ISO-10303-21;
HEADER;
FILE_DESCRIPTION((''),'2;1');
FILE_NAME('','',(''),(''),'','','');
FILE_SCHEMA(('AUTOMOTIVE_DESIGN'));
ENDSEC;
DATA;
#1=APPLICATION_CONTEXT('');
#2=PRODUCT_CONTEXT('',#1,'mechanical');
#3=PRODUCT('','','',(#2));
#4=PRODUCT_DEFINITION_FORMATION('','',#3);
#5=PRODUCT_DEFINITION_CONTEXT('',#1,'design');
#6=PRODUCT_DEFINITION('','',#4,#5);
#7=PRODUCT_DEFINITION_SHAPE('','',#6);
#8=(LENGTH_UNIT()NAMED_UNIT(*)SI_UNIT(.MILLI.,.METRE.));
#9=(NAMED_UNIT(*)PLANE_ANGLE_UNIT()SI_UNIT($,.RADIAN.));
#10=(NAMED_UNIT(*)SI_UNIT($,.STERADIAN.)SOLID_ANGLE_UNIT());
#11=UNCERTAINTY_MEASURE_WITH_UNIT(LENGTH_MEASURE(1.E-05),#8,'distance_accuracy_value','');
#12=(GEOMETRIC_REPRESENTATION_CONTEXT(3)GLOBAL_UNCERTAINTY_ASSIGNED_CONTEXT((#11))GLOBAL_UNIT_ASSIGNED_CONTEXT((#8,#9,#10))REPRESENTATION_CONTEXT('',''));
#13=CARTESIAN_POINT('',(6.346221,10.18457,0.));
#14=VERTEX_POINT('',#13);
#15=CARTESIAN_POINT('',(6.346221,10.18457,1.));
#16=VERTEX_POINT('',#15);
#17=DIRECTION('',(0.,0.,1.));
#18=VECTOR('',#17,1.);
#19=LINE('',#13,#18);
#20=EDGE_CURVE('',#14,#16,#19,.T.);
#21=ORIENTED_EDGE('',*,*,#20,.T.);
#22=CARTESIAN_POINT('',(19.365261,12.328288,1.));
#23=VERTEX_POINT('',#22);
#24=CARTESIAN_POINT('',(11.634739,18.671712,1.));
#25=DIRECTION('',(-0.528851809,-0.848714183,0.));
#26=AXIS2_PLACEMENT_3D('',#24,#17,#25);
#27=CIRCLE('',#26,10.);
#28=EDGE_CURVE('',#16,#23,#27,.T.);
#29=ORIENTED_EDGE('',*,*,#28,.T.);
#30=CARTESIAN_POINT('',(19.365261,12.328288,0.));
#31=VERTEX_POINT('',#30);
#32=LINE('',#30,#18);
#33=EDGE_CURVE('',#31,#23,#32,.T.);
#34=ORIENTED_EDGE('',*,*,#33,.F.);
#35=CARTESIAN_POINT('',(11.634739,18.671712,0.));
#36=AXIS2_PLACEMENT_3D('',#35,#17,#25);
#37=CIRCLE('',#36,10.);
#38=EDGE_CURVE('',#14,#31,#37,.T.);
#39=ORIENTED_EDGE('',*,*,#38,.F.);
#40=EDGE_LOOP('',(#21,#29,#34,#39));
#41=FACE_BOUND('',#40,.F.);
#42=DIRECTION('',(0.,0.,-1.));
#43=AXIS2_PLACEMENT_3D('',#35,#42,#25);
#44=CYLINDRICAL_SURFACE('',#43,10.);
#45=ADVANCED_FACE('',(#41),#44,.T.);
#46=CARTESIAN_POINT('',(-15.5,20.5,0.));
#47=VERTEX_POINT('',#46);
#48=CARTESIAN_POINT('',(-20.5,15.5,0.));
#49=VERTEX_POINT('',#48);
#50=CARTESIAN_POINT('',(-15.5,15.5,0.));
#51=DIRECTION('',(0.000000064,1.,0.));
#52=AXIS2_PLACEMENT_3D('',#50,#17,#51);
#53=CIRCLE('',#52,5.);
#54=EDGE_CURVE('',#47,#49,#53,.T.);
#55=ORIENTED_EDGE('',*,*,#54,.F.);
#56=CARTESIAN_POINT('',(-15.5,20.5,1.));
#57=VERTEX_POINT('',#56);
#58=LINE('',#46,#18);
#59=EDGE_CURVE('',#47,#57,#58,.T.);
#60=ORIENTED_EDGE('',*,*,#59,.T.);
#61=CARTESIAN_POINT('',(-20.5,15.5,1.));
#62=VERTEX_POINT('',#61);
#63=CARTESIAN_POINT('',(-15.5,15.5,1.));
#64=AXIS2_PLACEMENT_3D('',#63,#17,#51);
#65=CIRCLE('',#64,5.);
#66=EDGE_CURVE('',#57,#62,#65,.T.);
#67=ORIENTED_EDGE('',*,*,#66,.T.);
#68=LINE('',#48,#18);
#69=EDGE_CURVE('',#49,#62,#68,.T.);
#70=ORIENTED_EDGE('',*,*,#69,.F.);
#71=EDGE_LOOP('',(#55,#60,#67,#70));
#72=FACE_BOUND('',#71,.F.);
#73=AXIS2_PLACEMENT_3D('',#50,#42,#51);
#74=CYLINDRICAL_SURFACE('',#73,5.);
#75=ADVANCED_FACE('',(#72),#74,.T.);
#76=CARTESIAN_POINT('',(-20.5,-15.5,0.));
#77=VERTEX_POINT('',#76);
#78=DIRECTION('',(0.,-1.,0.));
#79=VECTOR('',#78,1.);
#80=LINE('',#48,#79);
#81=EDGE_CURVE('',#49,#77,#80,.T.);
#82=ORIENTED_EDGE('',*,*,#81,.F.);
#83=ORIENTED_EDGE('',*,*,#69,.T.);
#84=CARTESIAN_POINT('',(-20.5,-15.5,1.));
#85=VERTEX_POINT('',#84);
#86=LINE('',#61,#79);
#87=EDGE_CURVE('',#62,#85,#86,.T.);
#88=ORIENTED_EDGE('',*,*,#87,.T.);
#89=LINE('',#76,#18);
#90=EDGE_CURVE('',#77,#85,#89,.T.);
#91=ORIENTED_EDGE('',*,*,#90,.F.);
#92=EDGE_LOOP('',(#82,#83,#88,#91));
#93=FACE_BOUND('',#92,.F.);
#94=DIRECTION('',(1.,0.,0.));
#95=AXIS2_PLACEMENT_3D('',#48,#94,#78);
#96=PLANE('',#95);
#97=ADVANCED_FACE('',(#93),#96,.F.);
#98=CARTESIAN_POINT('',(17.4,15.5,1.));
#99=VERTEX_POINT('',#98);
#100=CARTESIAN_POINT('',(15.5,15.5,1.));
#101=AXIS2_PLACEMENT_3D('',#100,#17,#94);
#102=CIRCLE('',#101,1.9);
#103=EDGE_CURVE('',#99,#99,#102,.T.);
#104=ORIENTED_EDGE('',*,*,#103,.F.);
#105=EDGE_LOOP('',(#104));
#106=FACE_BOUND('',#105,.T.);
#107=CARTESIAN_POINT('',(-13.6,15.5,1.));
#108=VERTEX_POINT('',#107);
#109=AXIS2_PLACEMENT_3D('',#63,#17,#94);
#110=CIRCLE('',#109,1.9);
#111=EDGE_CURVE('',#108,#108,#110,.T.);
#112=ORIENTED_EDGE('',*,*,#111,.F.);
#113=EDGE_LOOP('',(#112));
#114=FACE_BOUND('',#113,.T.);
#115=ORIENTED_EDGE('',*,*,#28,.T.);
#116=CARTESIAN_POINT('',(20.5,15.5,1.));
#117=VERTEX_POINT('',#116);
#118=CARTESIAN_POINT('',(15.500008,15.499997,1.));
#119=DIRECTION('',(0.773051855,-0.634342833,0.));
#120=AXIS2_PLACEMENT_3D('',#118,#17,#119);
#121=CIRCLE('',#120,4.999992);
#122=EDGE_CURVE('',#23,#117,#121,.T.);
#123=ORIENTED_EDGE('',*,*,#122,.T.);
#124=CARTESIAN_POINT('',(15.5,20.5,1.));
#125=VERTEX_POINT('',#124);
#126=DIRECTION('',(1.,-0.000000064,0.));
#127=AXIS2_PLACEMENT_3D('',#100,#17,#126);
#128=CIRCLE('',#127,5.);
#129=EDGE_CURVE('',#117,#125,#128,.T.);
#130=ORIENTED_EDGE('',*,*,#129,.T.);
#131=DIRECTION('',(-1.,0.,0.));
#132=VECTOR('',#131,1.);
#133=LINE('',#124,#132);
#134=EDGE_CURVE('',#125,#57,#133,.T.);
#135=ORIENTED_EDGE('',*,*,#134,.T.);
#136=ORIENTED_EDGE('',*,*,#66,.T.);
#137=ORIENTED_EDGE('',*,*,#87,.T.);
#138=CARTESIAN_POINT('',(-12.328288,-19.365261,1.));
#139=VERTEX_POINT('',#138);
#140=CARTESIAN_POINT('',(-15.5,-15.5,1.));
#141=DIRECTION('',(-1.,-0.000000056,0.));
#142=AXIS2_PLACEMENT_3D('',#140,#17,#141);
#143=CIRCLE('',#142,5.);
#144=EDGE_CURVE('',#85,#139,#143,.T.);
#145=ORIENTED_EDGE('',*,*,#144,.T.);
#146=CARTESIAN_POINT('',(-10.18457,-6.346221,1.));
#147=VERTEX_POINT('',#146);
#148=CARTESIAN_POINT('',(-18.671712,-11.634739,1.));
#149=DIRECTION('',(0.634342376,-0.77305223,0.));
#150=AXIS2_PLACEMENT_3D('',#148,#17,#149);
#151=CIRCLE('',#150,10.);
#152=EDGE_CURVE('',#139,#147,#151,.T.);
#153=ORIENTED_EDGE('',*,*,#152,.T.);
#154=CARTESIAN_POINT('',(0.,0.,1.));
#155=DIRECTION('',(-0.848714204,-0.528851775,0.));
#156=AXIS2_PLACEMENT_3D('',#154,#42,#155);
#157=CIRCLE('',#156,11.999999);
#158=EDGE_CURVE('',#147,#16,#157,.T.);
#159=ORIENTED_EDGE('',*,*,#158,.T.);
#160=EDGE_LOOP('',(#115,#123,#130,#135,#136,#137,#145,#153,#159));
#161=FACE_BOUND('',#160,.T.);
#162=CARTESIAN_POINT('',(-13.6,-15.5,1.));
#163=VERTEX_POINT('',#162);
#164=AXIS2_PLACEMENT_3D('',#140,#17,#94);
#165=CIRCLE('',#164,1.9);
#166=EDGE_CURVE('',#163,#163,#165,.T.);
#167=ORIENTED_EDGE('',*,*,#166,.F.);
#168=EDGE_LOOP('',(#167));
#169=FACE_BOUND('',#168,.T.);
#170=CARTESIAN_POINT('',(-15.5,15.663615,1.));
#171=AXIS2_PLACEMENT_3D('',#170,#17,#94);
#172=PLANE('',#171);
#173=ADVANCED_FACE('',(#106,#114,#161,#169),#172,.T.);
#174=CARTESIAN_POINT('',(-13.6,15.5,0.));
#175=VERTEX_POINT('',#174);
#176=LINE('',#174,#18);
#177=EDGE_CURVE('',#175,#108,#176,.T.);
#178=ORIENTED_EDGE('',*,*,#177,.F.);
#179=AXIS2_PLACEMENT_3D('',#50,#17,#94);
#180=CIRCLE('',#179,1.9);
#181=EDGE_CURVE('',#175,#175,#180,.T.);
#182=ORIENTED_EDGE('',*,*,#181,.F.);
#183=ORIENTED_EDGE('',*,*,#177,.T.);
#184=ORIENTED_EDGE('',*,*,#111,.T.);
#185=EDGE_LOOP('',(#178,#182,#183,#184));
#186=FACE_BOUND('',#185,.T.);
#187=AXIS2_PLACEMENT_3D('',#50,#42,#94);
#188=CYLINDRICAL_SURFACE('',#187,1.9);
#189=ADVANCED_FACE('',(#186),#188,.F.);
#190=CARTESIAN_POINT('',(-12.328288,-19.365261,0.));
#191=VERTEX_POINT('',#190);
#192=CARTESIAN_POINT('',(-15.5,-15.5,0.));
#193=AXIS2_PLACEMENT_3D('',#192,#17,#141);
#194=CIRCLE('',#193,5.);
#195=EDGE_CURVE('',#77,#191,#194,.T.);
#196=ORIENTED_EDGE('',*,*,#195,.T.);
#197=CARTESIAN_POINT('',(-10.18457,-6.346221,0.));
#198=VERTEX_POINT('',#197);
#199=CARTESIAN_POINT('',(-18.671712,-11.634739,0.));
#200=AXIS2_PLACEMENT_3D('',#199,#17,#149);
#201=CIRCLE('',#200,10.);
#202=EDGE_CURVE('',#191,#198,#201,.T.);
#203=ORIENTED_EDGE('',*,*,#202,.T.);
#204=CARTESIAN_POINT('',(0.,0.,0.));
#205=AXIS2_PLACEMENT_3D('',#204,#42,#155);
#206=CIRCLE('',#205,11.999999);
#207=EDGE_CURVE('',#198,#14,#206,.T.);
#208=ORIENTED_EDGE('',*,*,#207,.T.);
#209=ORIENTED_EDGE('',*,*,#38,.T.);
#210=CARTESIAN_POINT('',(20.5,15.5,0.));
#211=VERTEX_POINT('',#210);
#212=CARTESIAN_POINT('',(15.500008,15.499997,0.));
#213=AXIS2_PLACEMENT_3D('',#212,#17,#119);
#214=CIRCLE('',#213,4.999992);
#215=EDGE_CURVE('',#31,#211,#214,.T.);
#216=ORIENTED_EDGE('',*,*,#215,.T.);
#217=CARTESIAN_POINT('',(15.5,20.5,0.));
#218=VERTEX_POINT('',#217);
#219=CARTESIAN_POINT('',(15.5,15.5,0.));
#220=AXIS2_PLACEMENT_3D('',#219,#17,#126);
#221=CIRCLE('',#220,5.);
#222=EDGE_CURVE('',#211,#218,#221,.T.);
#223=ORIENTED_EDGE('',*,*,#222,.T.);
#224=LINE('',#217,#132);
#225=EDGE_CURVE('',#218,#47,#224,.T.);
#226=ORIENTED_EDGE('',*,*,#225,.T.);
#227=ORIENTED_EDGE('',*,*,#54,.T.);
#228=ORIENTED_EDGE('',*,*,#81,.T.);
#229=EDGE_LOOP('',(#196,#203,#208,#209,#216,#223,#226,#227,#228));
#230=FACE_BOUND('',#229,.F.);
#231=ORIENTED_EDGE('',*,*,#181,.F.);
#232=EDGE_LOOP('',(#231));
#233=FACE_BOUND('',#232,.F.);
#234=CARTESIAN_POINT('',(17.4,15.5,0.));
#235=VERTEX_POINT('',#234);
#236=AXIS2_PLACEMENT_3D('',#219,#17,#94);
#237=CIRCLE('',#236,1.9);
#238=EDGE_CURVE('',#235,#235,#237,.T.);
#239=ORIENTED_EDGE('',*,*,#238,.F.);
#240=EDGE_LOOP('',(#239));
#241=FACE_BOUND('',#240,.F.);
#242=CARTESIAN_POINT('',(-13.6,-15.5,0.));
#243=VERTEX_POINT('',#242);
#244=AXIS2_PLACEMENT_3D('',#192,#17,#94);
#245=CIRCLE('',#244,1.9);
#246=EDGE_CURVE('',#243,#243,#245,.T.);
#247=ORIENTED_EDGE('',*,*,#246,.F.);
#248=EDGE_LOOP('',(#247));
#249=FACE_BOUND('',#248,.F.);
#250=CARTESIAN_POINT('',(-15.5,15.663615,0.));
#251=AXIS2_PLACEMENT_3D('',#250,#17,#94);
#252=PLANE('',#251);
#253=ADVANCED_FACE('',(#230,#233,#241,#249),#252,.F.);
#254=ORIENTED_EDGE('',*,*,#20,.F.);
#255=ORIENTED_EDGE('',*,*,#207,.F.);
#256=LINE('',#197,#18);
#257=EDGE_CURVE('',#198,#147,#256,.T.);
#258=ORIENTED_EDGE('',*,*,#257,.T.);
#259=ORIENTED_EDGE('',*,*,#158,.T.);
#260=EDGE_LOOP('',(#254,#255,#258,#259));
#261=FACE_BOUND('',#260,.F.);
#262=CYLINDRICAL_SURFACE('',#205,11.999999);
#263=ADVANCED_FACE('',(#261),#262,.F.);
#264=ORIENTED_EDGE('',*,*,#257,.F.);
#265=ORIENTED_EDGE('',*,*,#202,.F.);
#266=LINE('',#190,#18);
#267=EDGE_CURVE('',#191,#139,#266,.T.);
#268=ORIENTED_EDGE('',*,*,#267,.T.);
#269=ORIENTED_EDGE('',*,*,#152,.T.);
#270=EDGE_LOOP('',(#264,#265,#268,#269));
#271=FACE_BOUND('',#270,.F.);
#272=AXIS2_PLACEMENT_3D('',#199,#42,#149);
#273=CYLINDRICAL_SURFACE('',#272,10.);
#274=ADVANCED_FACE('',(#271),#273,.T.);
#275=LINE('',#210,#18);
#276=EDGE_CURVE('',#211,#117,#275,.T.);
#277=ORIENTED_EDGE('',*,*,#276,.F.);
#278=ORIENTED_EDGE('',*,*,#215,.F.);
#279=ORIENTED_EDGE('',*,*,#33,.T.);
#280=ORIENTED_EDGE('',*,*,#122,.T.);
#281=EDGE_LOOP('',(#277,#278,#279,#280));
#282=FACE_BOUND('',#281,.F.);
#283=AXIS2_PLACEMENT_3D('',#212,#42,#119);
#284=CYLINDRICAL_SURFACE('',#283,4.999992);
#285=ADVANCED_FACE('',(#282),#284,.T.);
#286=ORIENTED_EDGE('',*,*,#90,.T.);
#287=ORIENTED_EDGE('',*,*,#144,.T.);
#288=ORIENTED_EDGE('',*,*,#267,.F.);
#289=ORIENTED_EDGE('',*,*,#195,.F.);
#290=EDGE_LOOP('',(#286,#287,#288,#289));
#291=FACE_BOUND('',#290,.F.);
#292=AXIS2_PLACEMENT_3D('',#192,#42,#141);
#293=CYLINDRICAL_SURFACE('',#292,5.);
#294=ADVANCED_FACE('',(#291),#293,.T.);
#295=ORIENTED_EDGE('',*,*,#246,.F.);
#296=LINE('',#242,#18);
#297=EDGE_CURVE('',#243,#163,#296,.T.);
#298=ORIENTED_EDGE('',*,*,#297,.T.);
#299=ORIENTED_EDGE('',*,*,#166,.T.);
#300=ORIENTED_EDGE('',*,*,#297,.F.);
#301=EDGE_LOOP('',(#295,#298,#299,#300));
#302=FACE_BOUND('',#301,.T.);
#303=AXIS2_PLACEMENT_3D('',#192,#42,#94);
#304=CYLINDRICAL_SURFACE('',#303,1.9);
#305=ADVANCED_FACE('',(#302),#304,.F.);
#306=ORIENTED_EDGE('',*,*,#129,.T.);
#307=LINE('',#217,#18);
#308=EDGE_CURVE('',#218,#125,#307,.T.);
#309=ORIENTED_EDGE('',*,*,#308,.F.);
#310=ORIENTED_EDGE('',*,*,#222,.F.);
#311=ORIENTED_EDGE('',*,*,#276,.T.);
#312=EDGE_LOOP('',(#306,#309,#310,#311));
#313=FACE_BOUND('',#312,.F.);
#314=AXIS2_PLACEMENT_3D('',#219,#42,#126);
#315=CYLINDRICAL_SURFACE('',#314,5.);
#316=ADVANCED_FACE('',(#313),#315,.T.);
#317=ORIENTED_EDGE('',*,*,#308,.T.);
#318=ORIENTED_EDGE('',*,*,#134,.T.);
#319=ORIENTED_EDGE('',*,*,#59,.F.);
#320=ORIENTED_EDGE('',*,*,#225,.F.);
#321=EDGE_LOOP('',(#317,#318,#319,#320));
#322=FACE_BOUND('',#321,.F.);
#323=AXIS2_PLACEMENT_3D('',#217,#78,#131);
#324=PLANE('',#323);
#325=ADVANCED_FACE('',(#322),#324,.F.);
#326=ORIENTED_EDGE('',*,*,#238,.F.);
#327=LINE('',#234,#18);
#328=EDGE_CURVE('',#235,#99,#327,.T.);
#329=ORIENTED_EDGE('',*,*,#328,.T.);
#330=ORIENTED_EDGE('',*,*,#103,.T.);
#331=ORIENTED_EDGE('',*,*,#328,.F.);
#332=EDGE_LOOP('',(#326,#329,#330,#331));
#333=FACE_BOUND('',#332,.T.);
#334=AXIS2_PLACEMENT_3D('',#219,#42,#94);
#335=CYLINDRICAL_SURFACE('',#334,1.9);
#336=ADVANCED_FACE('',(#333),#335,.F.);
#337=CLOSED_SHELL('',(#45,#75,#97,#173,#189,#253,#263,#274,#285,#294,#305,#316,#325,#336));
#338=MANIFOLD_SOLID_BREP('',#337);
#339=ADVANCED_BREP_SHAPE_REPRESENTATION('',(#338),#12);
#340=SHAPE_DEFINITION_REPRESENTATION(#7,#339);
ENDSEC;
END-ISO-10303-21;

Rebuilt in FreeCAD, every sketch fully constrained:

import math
import FreeCAD as App
import Part
import Sketcher

V = App.Vector
Q = App.Units.Quantity

doc = App.newDocument("Part")
body = doc.addObject("PartDesign::Body", "Body")

# Sketch on XY plane
sketch1 = body.newObject("Sketcher::SketchObject", "Sketch")
sketch1.AttachmentSupport = (doc.getObject("XY_Plane"), [""])
sketch1.MapMode = "FlatFace"
sketch1.addGeometry(Part.ArcOfCircle(Part.Circle(V(-15.5, 15.5, 0), V(0, 0, 1), 5), math.radians(90), math.radians(180)), False)
sketch1.addGeometry(Part.LineSegment(V(-20.5, 15.5, 0), V(-20.5, -15.5, 0)), False)
sketch1.addGeometry(Part.ArcOfCircle(Part.Circle(V(-15.5, -15.5, 0), V(0, 0, 1), 5), math.radians(-180), math.radians(-51)), False)
sketch1.addGeometry(Part.ArcOfCircle(Part.Circle(V(-18.7, -11.6, 0), V(0, 0, 1), 10), math.radians(-51), math.radians(32)), False)
sketch1.addGeometry(Part.ArcOfCircle(Part.Circle(V(0, 0, 0), V(0, 0, 1), 12), math.radians(58), math.radians(212)), False)
sketch1.addGeometry(Part.ArcOfCircle(Part.Circle(V(11.6, 18.7, 0), V(0, 0, 1), 10), math.radians(-122), math.radians(-39)), False)
sketch1.addGeometry(Part.ArcOfCircle(Part.Circle(V(15.5, 15.5, 0), V(0, 0, 1), 5), math.radians(-39), math.radians(0)), False)
sketch1.addGeometry(Part.ArcOfCircle(Part.Circle(V(15.5, 15.5, 0), V(0, 0, 1), 5), math.radians(0), math.radians(90)), False)
sketch1.addGeometry(Part.LineSegment(V(15.5, 20.5, 0), V(-15.5, 20.5, 0)), False)
sketch1.addGeometry(Part.Circle(V(-15.5, -15.5, 0), V(0, 0, 1), 1.9), False)
sketch1.addGeometry(Part.Circle(V(-15.5, 15.5, 0), V(0, 0, 1), 1.9), False)
sketch1.addGeometry(Part.Circle(V(15.5, 15.5, 0), V(0, 0, 1), 1.9), False)
sketch1.addConstraint(Sketcher.Constraint("Tangent", 0, 2, 1, 1))
sketch1.addConstraint(Sketcher.Constraint("Tangent", 1, 2, 2, 1))
sketch1.addConstraint(Sketcher.Constraint("Tangent", 2, 2, 3, 1))
sketch1.addConstraint(Sketcher.Constraint("Tangent", 3, 2, 4, 2))
sketch1.addConstraint(Sketcher.Constraint("Tangent", 4, 1, 5, 1))
sketch1.addConstraint(Sketcher.Constraint("Tangent", 5, 2, 6, 1))
sketch1.addConstraint(Sketcher.Constraint("Tangent", 6, 2, 7, 1))
sketch1.addConstraint(Sketcher.Constraint("Tangent", 7, 2, 8, 1))
sketch1.addConstraint(Sketcher.Constraint("Tangent", 8, 2, 0, 1))
sketch1.addConstraint(Sketcher.Constraint("Vertical", 1))
sketch1.addConstraint(Sketcher.Constraint("Horizontal", 8))
sketch1.addConstraint(Sketcher.Constraint("Coincident", 4, 3, -1, 1))
sketch1.addConstraint(Sketcher.Constraint("Coincident", 9, 3, 2, 3))
sketch1.addConstraint(Sketcher.Constraint("Coincident", 10, 3, 0, 3))
sketch1.addConstraint(Sketcher.Constraint("Coincident", 11, 3, 6, 3))
sketch1.addConstraint(Sketcher.Constraint("Equal", 0, 2))
sketch1.addConstraint(Sketcher.Constraint("Equal", 3, 5))
sketch1.addConstraint(Sketcher.Constraint("Equal", 2, 7))
sketch1.addConstraint(Sketcher.Constraint("Equal", 9, 10))
sketch1.addConstraint(Sketcher.Constraint("Equal", 10, 11))
sketch1.addConstraint(Sketcher.Constraint("Symmetric", 2, 3, 6, 3, -1, 1))
sketch1.addConstraint(Sketcher.Constraint("Symmetric", 1, 2, 6, 2, -1, 1))
sketch1.addConstraint(Sketcher.Constraint("Equal", 8, 1))
sketch1.addConstraint(Sketcher.Constraint("Radius", 0, Q("5 mm")))
sketch1.addConstraint(Sketcher.Constraint("Radius", 3, Q("10 mm")))
sketch1.addConstraint(Sketcher.Constraint("Radius", 4, Q("11.999999 mm")))
sketch1.addConstraint(Sketcher.Constraint("Diameter", 9, Q("3.8 mm")))
sketch1.addConstraint(Sketcher.Constraint("DistanceX", 8, 2, 8, 1, Q("31 mm")))
pad1 = body.newObject("PartDesign::Pad", "Pad")
pad1.Profile = sketch1
pad1.Length = 1

doc.recompute()
